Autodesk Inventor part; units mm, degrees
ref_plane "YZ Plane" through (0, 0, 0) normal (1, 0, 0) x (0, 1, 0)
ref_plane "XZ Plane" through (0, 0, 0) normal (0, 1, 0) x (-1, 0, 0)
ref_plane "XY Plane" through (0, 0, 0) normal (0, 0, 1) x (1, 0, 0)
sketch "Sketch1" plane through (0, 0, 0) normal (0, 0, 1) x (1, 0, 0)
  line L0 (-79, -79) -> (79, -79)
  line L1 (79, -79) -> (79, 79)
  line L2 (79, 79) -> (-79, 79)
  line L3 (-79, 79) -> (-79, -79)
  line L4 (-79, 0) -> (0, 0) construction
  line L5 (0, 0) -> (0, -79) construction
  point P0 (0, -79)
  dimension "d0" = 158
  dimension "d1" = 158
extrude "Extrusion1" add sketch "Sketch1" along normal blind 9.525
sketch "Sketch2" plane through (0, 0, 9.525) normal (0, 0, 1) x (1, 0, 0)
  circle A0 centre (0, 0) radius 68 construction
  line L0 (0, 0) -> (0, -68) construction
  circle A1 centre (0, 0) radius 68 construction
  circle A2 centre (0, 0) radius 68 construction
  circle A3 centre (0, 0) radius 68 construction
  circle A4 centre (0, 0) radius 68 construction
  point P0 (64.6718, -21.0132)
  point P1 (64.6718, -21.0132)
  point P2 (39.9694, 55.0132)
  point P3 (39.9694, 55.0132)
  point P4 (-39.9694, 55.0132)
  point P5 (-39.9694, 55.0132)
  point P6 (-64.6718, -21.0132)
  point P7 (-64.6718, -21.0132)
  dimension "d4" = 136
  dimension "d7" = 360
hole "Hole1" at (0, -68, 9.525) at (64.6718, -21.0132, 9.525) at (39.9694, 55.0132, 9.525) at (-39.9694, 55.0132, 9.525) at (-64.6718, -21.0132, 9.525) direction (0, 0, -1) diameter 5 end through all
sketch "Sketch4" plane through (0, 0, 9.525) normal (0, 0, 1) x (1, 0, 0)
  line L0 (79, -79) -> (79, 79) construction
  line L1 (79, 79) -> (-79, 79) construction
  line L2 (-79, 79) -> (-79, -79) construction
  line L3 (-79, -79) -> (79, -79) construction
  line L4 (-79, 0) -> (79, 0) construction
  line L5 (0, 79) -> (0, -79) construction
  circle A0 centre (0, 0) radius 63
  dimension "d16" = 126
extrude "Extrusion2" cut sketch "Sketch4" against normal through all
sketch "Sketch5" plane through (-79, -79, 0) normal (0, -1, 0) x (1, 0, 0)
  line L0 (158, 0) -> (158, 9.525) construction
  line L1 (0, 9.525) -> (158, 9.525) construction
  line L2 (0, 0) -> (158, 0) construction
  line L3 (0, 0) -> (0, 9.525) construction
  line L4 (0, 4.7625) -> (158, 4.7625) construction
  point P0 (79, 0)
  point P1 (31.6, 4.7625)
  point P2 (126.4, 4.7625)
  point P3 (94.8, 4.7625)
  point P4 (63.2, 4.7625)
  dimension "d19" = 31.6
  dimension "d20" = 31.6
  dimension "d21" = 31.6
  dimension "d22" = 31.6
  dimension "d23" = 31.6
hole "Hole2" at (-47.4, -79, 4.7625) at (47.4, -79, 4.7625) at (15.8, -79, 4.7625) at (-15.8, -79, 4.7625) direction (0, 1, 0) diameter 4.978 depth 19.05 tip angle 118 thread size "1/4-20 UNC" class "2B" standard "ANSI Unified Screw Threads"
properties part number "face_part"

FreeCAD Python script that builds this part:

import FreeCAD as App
import Part
import Sketcher
Q = App.Units.Quantity


def add_polygon(sketch, points):
    """Adds a closed chain of lines whose ends are joined by coincident constraints."""
    first, n = sketch.GeometryCount, len(points)
    for a, b in zip(points, points[1:] + points[:1]):
        sketch.addGeometry(Part.LineSegment(App.Vector(*a, 0), App.Vector(*b, 0)), False)
    for i in range(n):
        sketch.addConstraint(Sketcher.Constraint("Coincident", first + i, 2, first + (i + 1) % n, 1))

doc = App.newDocument("Part")
body = doc.addObject("PartDesign::Body", "Body")

# Sketch on XY plane
sketch1 = body.newObject("Sketcher::SketchObject", "Sketch")
sketch1.AttachmentSupport = (doc.getObject("XY_Plane"), [""])
sketch1.MapMode = "FlatFace"
add_polygon(sketch1, [(-79, 79), (-79, -79), (79, -79), (79, 79)])  # lines 0-3
sketch1.addConstraint([
    Sketcher.Constraint("Vertical", 0),
    Sketcher.Constraint("Horizontal", 1),
    Sketcher.Constraint("Vertical", 2),
    Sketcher.Constraint("Horizontal", 3),
    Sketcher.Constraint("Symmetric", 0, 2, 2, 2, -1, 1),
    Sketcher.Constraint("Equal", 3, 0),
    Sketcher.Constraint("DistanceX", 1, 1, 1, 2, Q("158 mm")),
])
pad1 = body.newObject("PartDesign::Pad", "Pad")
pad1.Profile = sketch1
pad1.Length = 9.525

# Sketch on XY plane
sketch2 = body.newObject("Sketcher::SketchObject", "Sketch001")
sketch2.AttachmentSupport = (doc.getObject("XY_Plane"), [""])
sketch2.MapMode = "FlatFace"
sketch2.AttachmentOffset = App.Placement(App.Vector(0, 0, 9.525), App.Rotation())
sketch2.addGeometry([
    Part.Circle(App.Vector(0, -68, 0), App.Vector(0, 0, 1), 2.5),  # 0
    Part.Circle(App.Vector(64.7, -21, 0), App.Vector(0, 0, 1), 2.5),  # 1
    Part.Circle(App.Vector(40, 55, 0), App.Vector(0, 0, 1), 2.5),  # 2
    Part.Circle(App.Vector(-40, 55, 0), App.Vector(0, 0, 1), 2.5),  # 3
    Part.Circle(App.Vector(-64.7, -21, 0), App.Vector(0, 0, 1), 2.5),  # 4
], False)
sketch2.addConstraint([
    Sketcher.Constraint("Equal", 0, 1),
    Sketcher.Constraint("Equal", 1, 2),
    Sketcher.Constraint("Equal", 2, 3),
    Sketcher.Constraint("Equal", 3, 4),
    Sketcher.Constraint("Symmetric", 2, 3, 3, 3, -2),
    Sketcher.Constraint("Symmetric", 1, 3, 4, 3, -2),
    Sketcher.Constraint("PointOnObject", 0, 3, -2),
    Sketcher.Constraint("Diameter", 0, Q("5 mm")),
    Sketcher.Constraint("DistanceY", 0, 3, -1, 1, Q("68 mm")),
    Sketcher.Constraint("DistanceX", -1, 1, 1, 3, Q("64.6718 mm")),
    Sketcher.Constraint("DistanceY", 1, 3, -1, 1, Q("21.0132 mm")),
    Sketcher.Constraint("DistanceX", -1, 1, 2, 3, Q("39.9694 mm")),
    Sketcher.Constraint("DistanceY", -1, 1, 2, 3, Q("55.0132 mm")),
])
doc.recompute()
hole = body.newObject("PartDesign::Hole", "Hole")
hole.Profile = sketch2
hole.ThreadType = "None"
hole.Diameter = 5
hole.DepthType = "ThroughAll"

# Sketch on XY plane
sketch3 = body.newObject("Sketcher::SketchObject", "Sketch002")
sketch3.AttachmentSupport = (doc.getObject("XY_Plane"), [""])
sketch3.MapMode = "FlatFace"
sketch3.AttachmentOffset = App.Placement(App.Vector(0, 0, 9.525), App.Rotation())
sketch3.addGeometry(Part.Circle(App.Vector(0, 0, 0), App.Vector(0, 0, 1), 63), False)
sketch3.addConstraint([
    Sketcher.Constraint("Coincident", 0, 3, -1, 1),
    Sketcher.Constraint("Diameter", 0, Q("126 mm")),
])
pocket1 = body.newObject("PartDesign::Pocket", "Pocket")
pocket1.Profile = sketch3
pocket1.Type = "ThroughAll"

# Sketch on XZ plane
sketch4 = body.newObject("Sketcher::SketchObject", "Sketch003")
sketch4.AttachmentSupport = (doc.getObject("XZ_Plane"), [""])
sketch4.MapMode = "FlatFace"
sketch4.AttachmentOffset = App.Placement(App.Vector(0, 0, 79), App.Rotation())
sketch4.addGeometry([
    Part.Circle(App.Vector(-47.4, 4.8, 0), App.Vector(0, 0, 1), 2.5),
    Part.Circle(App.Vector(47.4, 4.8, 0), App.Vector(0, 0, 1), 2.5),
    Part.Circle(App.Vector(15.8, 4.8, 0), App.Vector(0, 0, 1), 2.5),
    Part.Circle(App.Vector(-15.8, 4.8, 0), App.Vector(0, 0, 1), 2.5),
], False)
sketch4.addConstraint([
    Sketcher.Constraint("Equal", 0, 1),
    Sketcher.Constraint("Equal", 1, 2),
    Sketcher.Constraint("Equal", 2, 3),
    Sketcher.Constraint("Symmetric", 0, 3, 1, 3, -2),
    Sketcher.Constraint("Symmetric", 2, 3, 3, 3, -2),
    Sketcher.Constraint("Horizontal", 1, 3, 2, 3),
    Sketcher.Constraint("Diameter", 0, Q("4.978 mm")),
    Sketcher.Constraint("DistanceX", 0, 3, -1, 1, Q("47.4 mm")),
    Sketcher.Constraint("DistanceX", -1, 1, 2, 3, Q("15.8 mm")),
    Sketcher.Constraint("DistanceY", -1, 1, 0, 3, Q("4.7625 mm")),
])
doc.recompute()
hole2 = body.newObject("PartDesign::Hole", "Hole001")
hole2.Profile = sketch4
hole2.ThreadType = "None"
hole2.Diameter = 4.978
hole2.DepthType = "Dimension"
hole2.Depth = 19.05
hole2.DrillPoint = "Angled"
hole2.DrillPointAngle = 118

doc.recompute()
